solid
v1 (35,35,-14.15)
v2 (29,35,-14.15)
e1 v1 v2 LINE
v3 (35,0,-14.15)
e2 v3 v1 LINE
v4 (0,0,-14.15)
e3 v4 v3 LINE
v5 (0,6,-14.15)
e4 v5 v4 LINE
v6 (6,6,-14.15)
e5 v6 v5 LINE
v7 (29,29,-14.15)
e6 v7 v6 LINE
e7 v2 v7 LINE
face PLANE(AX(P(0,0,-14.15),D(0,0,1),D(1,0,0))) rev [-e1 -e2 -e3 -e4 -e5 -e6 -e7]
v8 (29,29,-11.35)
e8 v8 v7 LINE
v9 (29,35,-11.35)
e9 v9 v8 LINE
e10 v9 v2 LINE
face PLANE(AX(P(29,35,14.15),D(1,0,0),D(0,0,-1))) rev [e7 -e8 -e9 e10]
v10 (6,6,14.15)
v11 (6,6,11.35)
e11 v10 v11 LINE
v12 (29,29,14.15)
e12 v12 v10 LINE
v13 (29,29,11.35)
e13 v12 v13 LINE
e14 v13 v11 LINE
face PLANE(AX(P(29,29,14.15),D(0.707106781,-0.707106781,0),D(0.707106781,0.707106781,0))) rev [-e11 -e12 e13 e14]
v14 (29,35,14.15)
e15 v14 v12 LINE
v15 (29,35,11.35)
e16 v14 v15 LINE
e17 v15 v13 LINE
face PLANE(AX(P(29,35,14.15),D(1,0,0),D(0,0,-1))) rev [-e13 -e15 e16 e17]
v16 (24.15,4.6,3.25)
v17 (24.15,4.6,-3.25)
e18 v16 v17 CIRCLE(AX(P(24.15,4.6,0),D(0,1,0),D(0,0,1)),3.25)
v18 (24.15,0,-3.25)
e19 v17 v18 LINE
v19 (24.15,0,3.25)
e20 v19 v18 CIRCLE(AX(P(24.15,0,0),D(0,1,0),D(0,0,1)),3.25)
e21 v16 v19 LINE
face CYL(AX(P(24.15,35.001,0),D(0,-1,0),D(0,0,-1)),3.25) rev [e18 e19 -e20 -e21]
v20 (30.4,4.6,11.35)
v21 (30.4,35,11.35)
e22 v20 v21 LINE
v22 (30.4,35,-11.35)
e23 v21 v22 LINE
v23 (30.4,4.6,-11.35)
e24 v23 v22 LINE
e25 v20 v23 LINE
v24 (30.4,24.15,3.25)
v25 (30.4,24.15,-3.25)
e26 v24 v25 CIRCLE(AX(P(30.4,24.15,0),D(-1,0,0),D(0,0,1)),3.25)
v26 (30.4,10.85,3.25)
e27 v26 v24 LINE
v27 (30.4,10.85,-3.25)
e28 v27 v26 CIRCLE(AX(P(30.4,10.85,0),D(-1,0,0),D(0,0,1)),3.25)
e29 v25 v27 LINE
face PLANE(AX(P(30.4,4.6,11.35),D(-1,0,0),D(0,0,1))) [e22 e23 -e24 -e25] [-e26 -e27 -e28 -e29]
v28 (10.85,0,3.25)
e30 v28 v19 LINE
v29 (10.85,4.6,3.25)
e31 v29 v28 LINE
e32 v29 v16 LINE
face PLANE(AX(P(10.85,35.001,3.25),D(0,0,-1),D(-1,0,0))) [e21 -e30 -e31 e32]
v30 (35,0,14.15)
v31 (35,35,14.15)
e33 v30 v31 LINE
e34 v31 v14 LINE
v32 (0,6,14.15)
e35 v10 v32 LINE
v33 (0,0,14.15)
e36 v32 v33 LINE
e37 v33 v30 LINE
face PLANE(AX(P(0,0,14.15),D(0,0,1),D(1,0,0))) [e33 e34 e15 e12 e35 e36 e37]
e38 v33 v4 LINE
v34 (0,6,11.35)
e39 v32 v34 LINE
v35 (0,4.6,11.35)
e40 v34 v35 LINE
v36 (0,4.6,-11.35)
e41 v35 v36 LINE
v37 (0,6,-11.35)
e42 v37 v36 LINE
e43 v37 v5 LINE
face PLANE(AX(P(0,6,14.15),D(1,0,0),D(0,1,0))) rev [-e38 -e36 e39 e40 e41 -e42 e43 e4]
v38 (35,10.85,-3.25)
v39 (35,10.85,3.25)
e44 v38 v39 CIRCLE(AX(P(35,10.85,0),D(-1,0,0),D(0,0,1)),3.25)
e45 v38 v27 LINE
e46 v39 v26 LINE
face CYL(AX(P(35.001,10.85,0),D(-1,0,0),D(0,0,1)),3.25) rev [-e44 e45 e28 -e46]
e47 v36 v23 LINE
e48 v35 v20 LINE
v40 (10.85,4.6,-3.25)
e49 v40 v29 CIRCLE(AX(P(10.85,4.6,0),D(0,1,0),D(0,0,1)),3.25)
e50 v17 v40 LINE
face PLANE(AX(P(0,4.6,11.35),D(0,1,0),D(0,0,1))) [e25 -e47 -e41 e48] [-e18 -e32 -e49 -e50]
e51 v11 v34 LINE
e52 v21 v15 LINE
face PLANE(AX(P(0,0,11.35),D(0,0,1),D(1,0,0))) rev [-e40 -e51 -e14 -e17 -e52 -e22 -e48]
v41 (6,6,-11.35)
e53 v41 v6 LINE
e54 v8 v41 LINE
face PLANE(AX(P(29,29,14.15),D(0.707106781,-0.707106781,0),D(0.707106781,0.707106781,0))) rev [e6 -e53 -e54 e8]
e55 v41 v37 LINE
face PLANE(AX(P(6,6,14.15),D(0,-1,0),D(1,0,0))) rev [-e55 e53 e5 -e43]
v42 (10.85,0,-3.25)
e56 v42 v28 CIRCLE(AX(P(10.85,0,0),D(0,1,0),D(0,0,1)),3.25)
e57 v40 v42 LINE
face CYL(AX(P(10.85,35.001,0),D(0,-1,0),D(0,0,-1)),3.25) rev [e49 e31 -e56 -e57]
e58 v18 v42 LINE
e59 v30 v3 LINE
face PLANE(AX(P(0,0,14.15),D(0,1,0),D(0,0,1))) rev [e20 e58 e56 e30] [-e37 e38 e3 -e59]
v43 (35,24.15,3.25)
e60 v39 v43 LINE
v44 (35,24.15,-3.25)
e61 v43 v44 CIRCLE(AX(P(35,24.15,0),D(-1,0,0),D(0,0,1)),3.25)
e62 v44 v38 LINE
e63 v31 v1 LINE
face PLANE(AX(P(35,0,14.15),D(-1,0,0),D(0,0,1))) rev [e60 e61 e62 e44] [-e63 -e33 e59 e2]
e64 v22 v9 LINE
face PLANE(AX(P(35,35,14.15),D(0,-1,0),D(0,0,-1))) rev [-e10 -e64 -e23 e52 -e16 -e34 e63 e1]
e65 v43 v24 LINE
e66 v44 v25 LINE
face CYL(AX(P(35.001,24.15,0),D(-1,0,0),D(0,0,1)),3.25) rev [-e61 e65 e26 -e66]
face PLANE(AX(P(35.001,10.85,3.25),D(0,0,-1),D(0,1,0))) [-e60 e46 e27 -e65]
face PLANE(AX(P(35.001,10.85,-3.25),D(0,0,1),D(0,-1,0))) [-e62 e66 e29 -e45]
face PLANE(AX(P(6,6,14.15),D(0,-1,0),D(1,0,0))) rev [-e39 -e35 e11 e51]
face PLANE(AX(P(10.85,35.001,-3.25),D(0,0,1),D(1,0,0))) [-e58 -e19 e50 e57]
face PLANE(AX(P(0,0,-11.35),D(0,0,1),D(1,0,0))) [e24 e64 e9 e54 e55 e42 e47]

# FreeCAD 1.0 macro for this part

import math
import FreeCAD as App
import Part
import Sketcher
from FreeCAD import Vector


def add_polygon(sketch, points):
    """Adds a closed chain of lines whose ends are joined by coincident constraints."""
    first, n = sketch.GeometryCount, len(points)
    for a, b in zip(points, points[1:] + points[:1]):
        sketch.addGeometry(Part.LineSegment(App.Vector(*a, 0), App.Vector(*b, 0)), False)
    for i in range(n):
        sketch.addConstraint(Sketcher.Constraint("Coincident", first + i, 2, first + (i + 1) % n, 1))

doc = App.newDocument("Part")
body = doc.addObject("PartDesign::Body", "Body")

# Sketch on XY plane
sketch1 = body.newObject("Sketcher::SketchObject", "Sketch")
sketch1.AttachmentSupport = (doc.getObject("XY_Plane"), [""])
sketch1.MapMode = "FlatFace"
add_polygon(sketch1, [(0, 0), (35, 0), (35, 35), (29, 35), (29, 29), (6, 6), (0, 6)])  # lines 0-6
sketch1.addConstraint([
    Sketcher.Constraint("Horizontal", 0),
    Sketcher.Constraint("Vertical", 1),
    Sketcher.Constraint("Horizontal", 2),
    Sketcher.Constraint("Vertical", 3),
    Sketcher.Constraint("Horizontal", 5),
    Sketcher.Constraint("Vertical", 6),
    Sketcher.Constraint("Coincident", 6, 2, -1, 1),
    Sketcher.Constraint("Equal", 2, 5),
    Sketcher.Constraint("Equal", 0, 1),
    Sketcher.Constraint("Equal", 5, 3),
    Sketcher.Constraint("Equal", 3, 6),
    Sketcher.Constraint("DistanceX", 0, 1, 0, 2, 35.0),
    Sketcher.Constraint("DistanceX", 2, 2, 2, 1, 6.0),
])
pad1 = body.newObject("PartDesign::Pad", "Pad")
pad1.Profile = sketch1
pad1.Length = 28.3
pad1.Midplane = True

# Sketch on XY plane
sketch2 = body.newObject("Sketcher::SketchObject", "Sketch001")
sketch2.AttachmentSupport = (doc.getObject("XY_Plane"), [""])
sketch2.MapMode = "FlatFace"
add_polygon(sketch2, [(0, 35), (0, 5), (30, 5), (30, 35)])  # lines 0-3
sketch2.addConstraint([
    Sketcher.Constraint("Vertical", 0),
    Sketcher.Constraint("Horizontal", 1),
    Sketcher.Constraint("Vertical", 2),
    Sketcher.Constraint("Horizontal", 3),
    Sketcher.Constraint("PointOnObject", 0, 2, -2),
    Sketcher.Constraint("Equal", 3, 0),
    Sketcher.Constraint("DistanceX", 1, 1, 1, 2, 30.4),
    Sketcher.Constraint("DistanceY", -1, 1, 2, 2, 35.0),
])
pocket1 = body.newObject("PartDesign::Pocket", "Pocket")
pocket1.Profile = sketch2
pocket1.Length = 22.7
pocket1.Midplane = True

# Sketch on XZ plane
sketch3 = body.newObject("Sketcher::SketchObject", "Sketch002")
sketch3.AttachmentSupport = (doc.getObject("XZ_Plane"), [""])
sketch3.MapMode = "FlatFace"
sketch3.addGeometry([
    Part.LineSegment(Vector(24.1, -3.2, 0), Vector(10.8, -3.2, 0)),
    Part.ArcOfCircle(Part.Circle(Vector(10.8, 0, 0), Vector(0, 0, 1), 3.2), math.radians(90), math.radians(270)),
    Part.LineSegment(Vector(10.8, 3.2, 0), Vector(24.1, 3.2, 0)),
    Part.ArcOfCircle(Part.Circle(Vector(24.1, 0, 0), Vector(0, 0, 1), 3.2), math.radians(-90), math.radians(90)),
], False)
sketch3.addConstraint([
    Sketcher.Constraint("Tangent", 0, 2, 1, 2),
    Sketcher.Constraint("Tangent", 1, 1, 2, 1),
    Sketcher.Constraint("Tangent", 2, 2, 3, 2),
    Sketcher.Constraint("Tangent", 3, 1, 0, 1),
    Sketcher.Constraint("Horizontal", 0),
    Sketcher.Constraint("Horizontal", 2),
    Sketcher.Constraint("PointOnObject", 1, 3, -1),
    Sketcher.Constraint("Radius", 1, 3.25),
    Sketcher.Constraint("DistanceX", 0, 2, 0, 1, 13.3),
    Sketcher.Constraint("DistanceX", -1, 1, 1, 3, 10.85),
])
pocket2 = body.newObject("PartDesign::Pocket", "Pocket001")
pocket2.Profile = sketch3
pocket2.Type = "UpToFirst"

# Sketch on YZ plane
sketch4 = body.newObject("Sketcher::SketchObject", "Sketch003")
sketch4.AttachmentSupport = (doc.getObject("YZ_Plane"), [""])
sketch4.MapMode = "FlatFace"
sketch4.addGeometry([
    Part.LineSegment(Vector(24.1, 3.2, 0), Vector(10.8, 3.2, 0)),
    Part.ArcOfCircle(Part.Circle(Vector(10.8, 0, 0), Vector(0, 0, 1), 3.2), math.radians(90), math.radians(270)),
    Part.LineSegment(Vector(10.8, -3.2, 0), Vector(24.1, -3.2, 0)),
    Part.ArcOfCircle(Part.Circle(Vector(24.1, 0, 0), Vector(0, 0, 1), 3.2), math.radians(-90), math.radians(90)),
], False)
sketch4.addConstraint([
    Sketcher.Constraint("Tangent", 0, 2, 1, 1),
    Sketcher.Constraint("Tangent", 1, 2, 2, 1),
    Sketcher.Constraint("Tangent", 2, 2, 3, 1),
    Sketcher.Constraint("Tangent", 3, 2, 0, 1),
    Sketcher.Constraint("Horizontal", 0),
    Sketcher.Constraint("Horizontal", 2),
    Sketcher.Constraint("PointOnObject", 1, 3, -1),
    Sketcher.Constraint("Radius", 1, 3.25),
    Sketcher.Constraint("DistanceX", 0, 2, 0, 1, 13.3),
    Sketcher.Constraint("DistanceX", -1, 1, 1, 3, 10.85),
])
pocket3 = body.newObject("PartDesign::Pocket", "Pocket002")
pocket3.Profile = sketch4
pocket3.Length = 35
pocket3.Reversed = True

doc.recompute()
